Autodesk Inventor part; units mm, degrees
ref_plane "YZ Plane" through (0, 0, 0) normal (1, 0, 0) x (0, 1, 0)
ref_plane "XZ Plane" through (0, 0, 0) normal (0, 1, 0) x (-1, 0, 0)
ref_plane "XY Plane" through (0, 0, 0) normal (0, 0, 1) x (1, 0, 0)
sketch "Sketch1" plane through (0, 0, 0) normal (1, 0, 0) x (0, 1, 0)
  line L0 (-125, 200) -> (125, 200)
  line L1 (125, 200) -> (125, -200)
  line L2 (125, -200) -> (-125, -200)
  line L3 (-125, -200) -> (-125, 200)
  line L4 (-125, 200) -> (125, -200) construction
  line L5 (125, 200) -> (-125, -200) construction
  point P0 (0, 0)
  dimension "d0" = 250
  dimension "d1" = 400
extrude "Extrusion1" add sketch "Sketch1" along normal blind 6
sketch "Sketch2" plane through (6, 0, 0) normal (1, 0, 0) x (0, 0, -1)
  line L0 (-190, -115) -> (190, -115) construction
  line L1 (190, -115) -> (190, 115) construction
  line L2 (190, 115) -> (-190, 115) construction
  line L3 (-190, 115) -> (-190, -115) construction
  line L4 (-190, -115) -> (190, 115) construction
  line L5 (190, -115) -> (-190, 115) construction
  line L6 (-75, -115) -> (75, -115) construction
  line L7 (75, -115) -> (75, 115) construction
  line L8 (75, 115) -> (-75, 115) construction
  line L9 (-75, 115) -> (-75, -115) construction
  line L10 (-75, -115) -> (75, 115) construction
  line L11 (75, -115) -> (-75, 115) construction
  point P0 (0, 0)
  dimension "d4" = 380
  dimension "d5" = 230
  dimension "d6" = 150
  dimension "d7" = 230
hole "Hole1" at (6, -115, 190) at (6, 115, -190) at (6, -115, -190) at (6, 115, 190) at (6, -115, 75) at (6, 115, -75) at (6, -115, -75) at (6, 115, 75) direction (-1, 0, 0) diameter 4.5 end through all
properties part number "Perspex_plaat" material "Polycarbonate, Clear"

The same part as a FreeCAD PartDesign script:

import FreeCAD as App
import Part
import Sketcher

V = App.Vector
Q = App.Units.Quantity


def add_polygon(sketch, points):
    """Adds a closed chain of lines whose ends are joined by coincident constraints."""
    first, n = sketch.GeometryCount, len(points)
    for a, b in zip(points, points[1:] + points[:1]):
        sketch.addGeometry(Part.LineSegment(App.Vector(*a, 0), App.Vector(*b, 0)), False)
    for i in range(n):
        sketch.addConstraint(Sketcher.Constraint("Coincident", first + i, 2, first + (i + 1) % n, 1))

doc = App.newDocument("Part")
body = doc.addObject("PartDesign::Body", "Body")

# Sketch on YZ plane
sketch1 = doc.addObject("Sketcher::SketchObject", "Sketch")
body.addObject(sketch1)
sketch1.AttachmentSupport = (doc.YZ_Plane, [""])
sketch1.MapMode = "FlatFace"
add_polygon(sketch1, [(125, 200), (-125, 200), (-125, -200), (125, -200)])  # lines 0-3
sketch1.addConstraint([
    Sketcher.Constraint("Horizontal", 0),
    Sketcher.Constraint("Vertical", 1),
    Sketcher.Constraint("Horizontal", 2),
    Sketcher.Constraint("Vertical", 3),
    Sketcher.Constraint("Symmetric", 0, 2, 2, 2, -1, 1),
    Sketcher.Constraint("DistanceX", 0, 2, 0, 1, Q("250 mm")),
    Sketcher.Constraint("DistanceY", 1, 2, 1, 1, Q("400 mm")),
])
pad1 = doc.addObject("PartDesign::Pad", "Pad")
body.addObject(pad1)
pad1.Profile = sketch1
pad1.Length = 6

# Sketch on YZ plane
sketch2 = doc.addObject("Sketcher::SketchObject", "Sketch001")
body.addObject(sketch2)
sketch2.AttachmentSupport = (doc.YZ_Plane, [""])
sketch2.MapMode = "FlatFace"
sketch2.AttachmentOffset = App.Placement(V(0, 0, 6), App.Rotation())
sketch2.addGeometry([
    Part.Circle(V(-115, 190, 0), V(0, 0, 1), 2.2),  # 0
    Part.Circle(V(115, -190, 0), V(0, 0, 1), 2.2),  # 1
    Part.Circle(V(-115, -190, 0), V(0, 0, 1), 2.2),  # 2
    Part.Circle(V(115, 190, 0), V(0, 0, 1), 2.2),  # 3
    Part.Circle(V(-115, 75, 0), V(0, 0, 1), 2.2),  # 4
    Part.Circle(V(115, -75, 0), V(0, 0, 1), 2.2),  # 5
    Part.Circle(V(-115, -75, 0), V(0, 0, 1), 2.2),  # 6
    Part.Circle(V(115, 75, 0), V(0, 0, 1), 2.2),  # 7
], False)
sketch2.addConstraint([
    Sketcher.Constraint("Equal", 0, 1),
    Sketcher.Constraint("Equal", 1, 2),
    Sketcher.Constraint("Equal", 2, 3),
    Sketcher.Constraint("Equal", 3, 4),
    Sketcher.Constraint("Equal", 4, 5),
    Sketcher.Constraint("Equal", 5, 6),
    Sketcher.Constraint("Equal", 6, 7),
    Sketcher.Constraint("Symmetric", 0, 3, 1, 3, -1, 1),
    Sketcher.Constraint("Symmetric", 2, 3, 3, 3, -1, 1),
    Sketcher.Constraint("Symmetric", 4, 3, 5, 3, -1, 1),
    Sketcher.Constraint("Symmetric", 6, 3, 7, 3, -1, 1),
    Sketcher.Constraint("Symmetric", 1, 3, 2, 3, -2),
    Sketcher.Constraint("Symmetric", 5, 3, 6, 3, -2),
    Sketcher.Constraint("Vertical", 2, 3, 4, 3),
    Sketcher.Constraint("Diameter", 0, Q("4.5 mm")),
    Sketcher.Constraint("DistanceX", 0, 3, -1, 1, Q("115 mm")),
    Sketcher.Constraint("DistanceY", -1, 1, 0, 3, Q("190 mm")),
    Sketcher.Constraint("DistanceY", -1, 1, 4, 3, Q("75 mm")),
])
doc.recompute()
hole = doc.addObject("PartDesign::Hole", "Hole")
body.addObject(hole)
hole.Profile = sketch2
hole.ThreadType = "None"
hole.Diameter = 4.5
hole.DepthType = "ThroughAll"

doc.recompute()
